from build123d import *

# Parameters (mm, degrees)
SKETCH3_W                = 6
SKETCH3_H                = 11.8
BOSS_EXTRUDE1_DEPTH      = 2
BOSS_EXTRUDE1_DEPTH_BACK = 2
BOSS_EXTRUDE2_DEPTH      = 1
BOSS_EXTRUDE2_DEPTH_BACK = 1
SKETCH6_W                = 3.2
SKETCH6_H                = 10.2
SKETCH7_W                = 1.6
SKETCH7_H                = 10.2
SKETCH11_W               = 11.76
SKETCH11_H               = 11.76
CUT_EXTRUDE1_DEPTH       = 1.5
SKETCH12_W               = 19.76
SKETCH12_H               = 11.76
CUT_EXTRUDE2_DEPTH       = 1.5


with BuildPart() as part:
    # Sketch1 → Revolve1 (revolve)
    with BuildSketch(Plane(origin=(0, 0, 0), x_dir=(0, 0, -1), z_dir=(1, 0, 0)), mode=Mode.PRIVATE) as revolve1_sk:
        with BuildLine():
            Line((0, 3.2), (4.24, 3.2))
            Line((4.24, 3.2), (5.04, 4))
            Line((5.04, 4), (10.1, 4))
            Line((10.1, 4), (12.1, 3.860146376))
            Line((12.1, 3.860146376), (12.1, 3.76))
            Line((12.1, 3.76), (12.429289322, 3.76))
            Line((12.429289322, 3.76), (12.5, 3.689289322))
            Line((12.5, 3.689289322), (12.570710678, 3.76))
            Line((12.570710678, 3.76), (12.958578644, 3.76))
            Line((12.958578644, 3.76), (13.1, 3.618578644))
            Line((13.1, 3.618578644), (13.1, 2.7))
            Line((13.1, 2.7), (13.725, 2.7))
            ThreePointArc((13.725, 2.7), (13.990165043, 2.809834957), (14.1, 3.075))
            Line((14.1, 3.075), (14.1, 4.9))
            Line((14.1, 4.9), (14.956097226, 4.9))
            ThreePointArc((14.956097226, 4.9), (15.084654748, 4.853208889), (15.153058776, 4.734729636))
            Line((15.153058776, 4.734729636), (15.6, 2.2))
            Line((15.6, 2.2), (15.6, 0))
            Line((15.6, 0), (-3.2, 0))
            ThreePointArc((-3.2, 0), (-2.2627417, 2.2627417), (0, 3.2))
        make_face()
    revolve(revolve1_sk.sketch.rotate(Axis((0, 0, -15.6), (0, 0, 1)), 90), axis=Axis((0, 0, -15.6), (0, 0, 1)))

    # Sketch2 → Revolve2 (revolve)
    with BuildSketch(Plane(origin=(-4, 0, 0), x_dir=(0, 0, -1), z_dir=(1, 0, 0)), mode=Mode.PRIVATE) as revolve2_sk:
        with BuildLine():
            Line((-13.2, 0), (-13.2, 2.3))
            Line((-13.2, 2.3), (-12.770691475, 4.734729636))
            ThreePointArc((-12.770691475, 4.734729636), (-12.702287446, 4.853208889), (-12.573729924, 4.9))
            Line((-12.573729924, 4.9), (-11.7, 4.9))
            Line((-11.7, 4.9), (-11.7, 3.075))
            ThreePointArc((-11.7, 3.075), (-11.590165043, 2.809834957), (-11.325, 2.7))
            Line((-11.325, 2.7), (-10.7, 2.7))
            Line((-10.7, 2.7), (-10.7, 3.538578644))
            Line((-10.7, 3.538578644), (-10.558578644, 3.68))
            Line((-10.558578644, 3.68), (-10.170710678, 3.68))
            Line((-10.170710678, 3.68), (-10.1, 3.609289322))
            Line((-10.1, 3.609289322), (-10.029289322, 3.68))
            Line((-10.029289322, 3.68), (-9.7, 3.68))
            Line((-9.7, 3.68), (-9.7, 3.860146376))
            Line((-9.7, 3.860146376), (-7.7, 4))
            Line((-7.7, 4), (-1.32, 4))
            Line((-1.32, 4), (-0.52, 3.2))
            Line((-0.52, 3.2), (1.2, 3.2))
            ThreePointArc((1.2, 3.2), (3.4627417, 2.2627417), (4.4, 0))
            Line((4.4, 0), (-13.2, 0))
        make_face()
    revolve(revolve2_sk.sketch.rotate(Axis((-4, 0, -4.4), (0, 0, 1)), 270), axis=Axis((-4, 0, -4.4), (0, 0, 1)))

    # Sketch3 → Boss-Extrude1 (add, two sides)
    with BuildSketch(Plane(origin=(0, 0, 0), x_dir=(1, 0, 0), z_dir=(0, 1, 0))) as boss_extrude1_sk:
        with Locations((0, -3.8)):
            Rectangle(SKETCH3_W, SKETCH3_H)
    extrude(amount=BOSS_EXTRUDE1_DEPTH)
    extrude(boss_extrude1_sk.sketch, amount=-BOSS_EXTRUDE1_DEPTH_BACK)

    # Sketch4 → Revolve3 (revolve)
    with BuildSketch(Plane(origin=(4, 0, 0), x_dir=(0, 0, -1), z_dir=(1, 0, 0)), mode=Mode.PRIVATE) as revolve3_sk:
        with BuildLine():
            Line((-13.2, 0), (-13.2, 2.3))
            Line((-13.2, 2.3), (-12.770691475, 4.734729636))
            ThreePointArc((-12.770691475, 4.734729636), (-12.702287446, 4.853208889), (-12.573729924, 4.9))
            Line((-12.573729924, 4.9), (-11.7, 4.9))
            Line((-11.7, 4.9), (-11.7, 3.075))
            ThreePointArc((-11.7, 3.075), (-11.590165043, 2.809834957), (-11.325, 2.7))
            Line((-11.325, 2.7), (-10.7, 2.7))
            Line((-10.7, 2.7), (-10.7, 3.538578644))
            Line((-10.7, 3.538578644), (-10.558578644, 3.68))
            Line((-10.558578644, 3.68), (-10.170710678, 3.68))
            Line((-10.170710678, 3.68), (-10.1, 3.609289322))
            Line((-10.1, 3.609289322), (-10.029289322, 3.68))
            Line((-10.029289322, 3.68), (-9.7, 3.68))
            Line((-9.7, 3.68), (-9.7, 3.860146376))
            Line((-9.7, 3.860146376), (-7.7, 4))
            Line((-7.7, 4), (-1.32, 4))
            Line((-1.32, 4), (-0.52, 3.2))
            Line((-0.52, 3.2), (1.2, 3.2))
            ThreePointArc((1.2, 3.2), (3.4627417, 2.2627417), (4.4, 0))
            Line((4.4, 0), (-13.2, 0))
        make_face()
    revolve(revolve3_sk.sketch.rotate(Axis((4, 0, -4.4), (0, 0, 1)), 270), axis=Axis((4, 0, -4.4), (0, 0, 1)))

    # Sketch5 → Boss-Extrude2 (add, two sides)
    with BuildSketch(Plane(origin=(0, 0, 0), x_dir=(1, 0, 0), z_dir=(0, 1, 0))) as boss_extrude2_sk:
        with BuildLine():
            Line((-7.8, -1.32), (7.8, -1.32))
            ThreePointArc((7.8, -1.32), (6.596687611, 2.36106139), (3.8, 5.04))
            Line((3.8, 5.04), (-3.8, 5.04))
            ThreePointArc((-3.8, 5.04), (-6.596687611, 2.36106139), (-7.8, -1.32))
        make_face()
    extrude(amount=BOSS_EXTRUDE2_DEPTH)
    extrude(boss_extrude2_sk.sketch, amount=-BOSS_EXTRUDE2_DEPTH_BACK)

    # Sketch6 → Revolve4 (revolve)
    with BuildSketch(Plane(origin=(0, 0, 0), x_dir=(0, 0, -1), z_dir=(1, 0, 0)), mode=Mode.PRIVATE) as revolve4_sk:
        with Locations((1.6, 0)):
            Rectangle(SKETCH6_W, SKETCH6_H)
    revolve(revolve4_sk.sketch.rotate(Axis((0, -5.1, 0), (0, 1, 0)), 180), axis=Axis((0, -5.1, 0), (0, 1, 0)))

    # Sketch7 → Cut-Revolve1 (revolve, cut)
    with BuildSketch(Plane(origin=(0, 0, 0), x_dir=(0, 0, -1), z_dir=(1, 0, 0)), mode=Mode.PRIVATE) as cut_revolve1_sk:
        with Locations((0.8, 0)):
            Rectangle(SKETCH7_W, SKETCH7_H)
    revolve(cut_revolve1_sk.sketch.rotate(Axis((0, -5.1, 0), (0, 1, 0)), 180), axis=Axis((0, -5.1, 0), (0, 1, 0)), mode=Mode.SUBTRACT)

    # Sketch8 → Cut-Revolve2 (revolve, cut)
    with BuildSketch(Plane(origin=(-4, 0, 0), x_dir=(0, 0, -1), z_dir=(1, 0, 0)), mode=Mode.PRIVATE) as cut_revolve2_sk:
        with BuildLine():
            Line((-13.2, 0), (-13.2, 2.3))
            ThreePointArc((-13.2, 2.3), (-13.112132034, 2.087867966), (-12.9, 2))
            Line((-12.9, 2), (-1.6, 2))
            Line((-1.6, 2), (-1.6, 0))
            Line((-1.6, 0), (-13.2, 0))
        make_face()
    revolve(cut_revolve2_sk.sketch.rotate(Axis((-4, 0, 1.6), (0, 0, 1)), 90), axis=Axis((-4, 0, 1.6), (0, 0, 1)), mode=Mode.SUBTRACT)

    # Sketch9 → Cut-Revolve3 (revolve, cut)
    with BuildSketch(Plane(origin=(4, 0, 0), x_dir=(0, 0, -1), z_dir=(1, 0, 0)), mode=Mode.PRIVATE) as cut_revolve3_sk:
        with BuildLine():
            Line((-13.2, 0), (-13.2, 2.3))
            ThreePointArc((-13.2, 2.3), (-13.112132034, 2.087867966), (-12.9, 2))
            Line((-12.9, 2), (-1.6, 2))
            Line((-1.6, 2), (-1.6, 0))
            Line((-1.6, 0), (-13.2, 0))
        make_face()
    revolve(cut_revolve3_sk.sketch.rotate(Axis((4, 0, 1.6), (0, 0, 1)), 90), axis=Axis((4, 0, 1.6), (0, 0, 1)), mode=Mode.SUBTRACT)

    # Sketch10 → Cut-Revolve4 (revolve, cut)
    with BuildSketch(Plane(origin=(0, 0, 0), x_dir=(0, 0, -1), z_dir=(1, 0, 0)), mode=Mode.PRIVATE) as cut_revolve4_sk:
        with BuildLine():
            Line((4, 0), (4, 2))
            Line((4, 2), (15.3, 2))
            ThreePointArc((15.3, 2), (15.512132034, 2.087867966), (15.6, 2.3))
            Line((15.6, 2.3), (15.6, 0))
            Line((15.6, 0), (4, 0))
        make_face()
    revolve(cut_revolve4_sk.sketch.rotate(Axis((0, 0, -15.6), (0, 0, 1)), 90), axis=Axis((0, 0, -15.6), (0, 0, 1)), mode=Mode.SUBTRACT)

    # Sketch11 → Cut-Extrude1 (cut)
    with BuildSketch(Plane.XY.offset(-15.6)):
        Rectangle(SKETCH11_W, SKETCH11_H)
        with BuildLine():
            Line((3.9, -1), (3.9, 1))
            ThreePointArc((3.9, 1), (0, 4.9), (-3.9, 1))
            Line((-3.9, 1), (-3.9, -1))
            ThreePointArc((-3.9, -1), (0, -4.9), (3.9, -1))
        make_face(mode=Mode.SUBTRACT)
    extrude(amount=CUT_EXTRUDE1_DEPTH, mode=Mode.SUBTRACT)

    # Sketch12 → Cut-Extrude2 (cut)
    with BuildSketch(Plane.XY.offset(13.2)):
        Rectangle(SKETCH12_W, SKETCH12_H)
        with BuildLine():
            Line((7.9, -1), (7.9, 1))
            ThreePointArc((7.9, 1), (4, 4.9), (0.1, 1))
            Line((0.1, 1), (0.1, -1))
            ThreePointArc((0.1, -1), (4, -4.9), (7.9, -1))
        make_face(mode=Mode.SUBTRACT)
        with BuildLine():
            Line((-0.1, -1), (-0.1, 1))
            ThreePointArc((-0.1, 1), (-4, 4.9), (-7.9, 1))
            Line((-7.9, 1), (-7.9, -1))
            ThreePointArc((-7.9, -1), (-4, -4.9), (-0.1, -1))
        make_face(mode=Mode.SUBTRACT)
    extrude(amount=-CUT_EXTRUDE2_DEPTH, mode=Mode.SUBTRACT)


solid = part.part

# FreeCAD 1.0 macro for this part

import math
import FreeCAD as App
import Part
import Sketcher

V = App.Vector
Q = App.Units.Quantity


def add_polygon(sketch, points):
    """Adds a closed chain of lines whose ends are joined by coincident constraints."""
    first, n = sketch.GeometryCount, len(points)
    for a, b in zip(points, points[1:] + points[:1]):
        sketch.addGeometry(Part.LineSegment(App.Vector(*a, 0), App.Vector(*b, 0)), False)
    for i in range(n):
        sketch.addConstraint(Sketcher.Constraint("Coincident", first + i, 2, first + (i + 1) % n, 1))

doc = App.newDocument("Part")
body = doc.addObject("PartDesign::Body", "Body")

sketch1 = doc.addObject("Sketcher::SketchObject", "Sketch")
body.addObject(sketch1)
sketch1.AttachmentSupport = (doc.YZ_Plane, [""])
sketch1.MapMode = "FlatFace"
sketch1.addGeometry([
    Part.LineSegment(V(3.2, -4.24, 0), V(3.2, 0, 0)),
    Part.ArcOfCircle(Part.Circle(V(0, 0, 0), V(0, 0, 1), 3.2), math.radians(0), math.radians(90)),
    Part.LineSegment(V(0, 3.2, 0), V(0, -15.6, 0)),
    Part.LineSegment(V(0, -15.6, 0), V(2.2, -15.6, 0)),
    Part.LineSegment(V(2.2, -15.6, 0), V(4.73473, -15.153059, 0)),
    Part.ArcOfCircle(Part.Circle(V(4.7, -14.956097, 0), V(0, 0, 1), 0.2), math.radians(-80), math.radians(0)),
    Part.LineSegment(V(4.9, -14.956097, 0), V(4.9, -14.1, 0)),
    Part.LineSegment(V(4.9, -14.1, 0), V(3.075, -14.1, 0)),
    Part.ArcOfCircle(Part.Circle(V(3.075, -13.725, 0), V(0, 0, 1), 0.375), math.radians(180), math.radians(270)),
    Part.LineSegment(V(2.7, -13.725, 0), V(2.7, -13.1, 0)),
    Part.LineSegment(V(2.7, -13.1, 0), V(3.618579, -13.1, 0)),
    Part.LineSegment(V(3.618579, -13.1, 0), V(3.76, -12.958579, 0)),
    Part.LineSegment(V(3.76, -12.958579, 0), V(3.76, -12.570711, 0)),
    Part.LineSegment(V(3.76, -12.570711, 0), V(3.689289, -12.5, 0)),
    Part.LineSegment(V(3.689289, -12.5, 0), V(3.76, -12.429289, 0)),
    Part.LineSegment(V(3.76, -12.429289, 0), V(3.76, -12.1, 0)),
    Part.LineSegment(V(3.76, -12.1, 0), V(3.860146, -12.1, 0)),
    Part.LineSegment(V(3.860146, -12.1, 0), V(4, -10.1, 0)),
    Part.LineSegment(V(4, -10.1, 0), V(4, -5.04, 0)),
    Part.LineSegment(V(4, -5.04, 0), V(3.2, -4.24, 0)),
], False)
sketch1.addConstraint([
    Sketcher.Constraint("Tangent", 0, 2, 1, 1),
    Sketcher.Constraint("Coincident", 1, 2, 2, 1),
    Sketcher.Constraint("Coincident", 2, 2, 3, 1),
    Sketcher.Constraint("Coincident", 3, 2, 4, 1),
    Sketcher.Constraint("Tangent", 4, 2, 5, 1),
    Sketcher.Constraint("Tangent", 5, 2, 6, 1),
    Sketcher.Constraint("Coincident", 6, 2, 7, 1),
    Sketcher.Constraint("Tangent", 7, 2, 8, 2),
    Sketcher.Constraint("Tangent", 8, 1, 9, 1),
    Sketcher.Constraint("Coincident", 9, 2, 10, 1),
    Sketcher.Constraint("Coincident", 10, 2, 11, 1),
    Sketcher.Constraint("Coincident", 11, 2, 12, 1),
    Sketcher.Constraint("Coincident", 12, 2, 13, 1),
    Sketcher.Constraint("Coincident", 13, 2, 14, 1),
    Sketcher.Constraint("Coincident", 14, 2, 15, 1),
    Sketcher.Constraint("Coincident", 15, 2, 16, 1),
    Sketcher.Constraint("Coincident", 16, 2, 17, 1),
    Sketcher.Constraint("Coincident", 17, 2, 18, 1),
    Sketcher.Constraint("Coincident", 18, 2, 19, 1),
    Sketcher.Constraint("Coincident", 19, 2, 0, 1),
    Sketcher.Constraint("Vertical", 0),
    Sketcher.Constraint("Vertical", 2),
    Sketcher.Constraint("Horizontal", 3),
    Sketcher.Constraint("Vertical", 6),
    Sketcher.Constraint("Horizontal", 7),
    Sketcher.Constraint("Vertical", 9),
    Sketcher.Constraint("Horizontal", 10),
    Sketcher.Constraint("Vertical", 12),
    Sketcher.Constraint("Vertical", 15),
    Sketcher.Constraint("Horizontal", 16),
    Sketcher.Constraint("Vertical", 18),
    Sketcher.Constraint("Coincident", 1, 3, -1, 1),
    Sketcher.Constraint("PointOnObject", 1, 2, -2),
    Sketcher.Constraint("Perpendicular", 11, 13),
    Sketcher.Constraint("Perpendicular", 13, 14),
    Sketcher.Constraint("Perpendicular", 14, 19),
    Sketcher.Constraint("Vertical", 12, 2, 14, 2),
    Sketcher.Constraint("Equal", 13, 14),
    Sketcher.Constraint("Radius", 1, 3.2),
    Sketcher.Constraint("Radius", 5, 0.2),
    Sketcher.Constraint("Angle", 4, Q("10 deg")),
    Sketcher.Constraint("Angle", 17, Q("86 deg")),
    Sketcher.Constraint("DistanceX", 3, 1, 3, 2, 2.2),
    Sketcher.Constraint("DistanceY", 2, 2, 2, 1, 18.8),
    Sketcher.Constraint("DistanceX", -1, 1, 17, 2, 4.0),
    Sketcher.Constraint("Radius", 8, 0.375),
    Sketcher.Constraint("DistanceX", 8, 1, 5, 3, 2.0),
    Sketcher.Constraint("DistanceY", 7, 2, 9, 2, 1.0),
    Sketcher.Constraint("DistanceY", 10, 2, 15, 2, 1.0),
    Sketcher.Constraint("DistanceY", 16, 2, 17, 2, 2.0),
    Sketcher.Constraint("Distance", 11, 0.2),
    Sketcher.Constraint("Distance", 13, 0.1),
    Sketcher.Constraint("DistanceY", 0, 1, 0, 2, 4.24),
    Sketcher.Constraint("DistanceY", 18, 1, 18, 2, 5.06),
    Sketcher.Constraint("DistanceX", -1, 1, 5, 3, 4.7),
    Sketcher.Constraint("DistanceY", 13, 2, -1, 1, 12.5),
    Sketcher.Constraint("DistanceX", -1, 1, 11, 2, 3.76),
])
revolution = doc.addObject("PartDesign::Revolution", "Revolution")
body.addObject(revolution)
revolution.Profile = sketch1
revolution.ReferenceAxis = (sketch1, ["V_Axis"])
revolution.Angle = 360

sketch2 = doc.addObject("Sketcher::SketchObject", "Sketch001")
body.addObject(sketch2)
sketch2.AttachmentSupport = (doc.YZ_Plane, [""])
sketch2.MapMode = "FlatFace"
sketch2.AttachmentOffset = App.Placement(V(0, 0, -4), App.Rotation())
sketch2.addGeometry([
    Part.LineSegment(V(2.3, 13.2, 0), V(0, 13.2, 0)),
    Part.LineSegment(V(0, 13.2, 0), V(0, -4.4, 0)),
    Part.ArcOfCircle(Part.Circle(V(0, -1.2, 0), V(0, 0, 1), 3.2), math.radians(-90), math.radians(0)),
    Part.LineSegment(V(3.2, -1.2, 0), V(3.2, 0.52, 0)),
    Part.LineSegment(V(3.2, 0.52, 0), V(4, 1.32, 0)),
    Part.LineSegment(V(4, 1.32, 0), V(4, 7.7, 0)),
    Part.LineSegment(V(4, 7.7, 0), V(3.860146, 9.7, 0)),
    Part.LineSegment(V(3.860146, 9.7, 0), V(3.68, 9.7, 0)),
    Part.LineSegment(V(3.68, 9.7, 0), V(3.68, 10.029289, 0)),
    Part.LineSegment(V(3.68, 10.029289, 0), V(3.609289, 10.1, 0)),
    Part.LineSegment(V(3.609289, 10.1, 0), V(3.68, 10.170711, 0)),
    Part.LineSegment(V(3.68, 10.170711, 0), V(3.68, 10.558579, 0)),
    Part.LineSegment(V(3.68, 10.558579, 0), V(3.538579, 10.7, 0)),
    Part.LineSegment(V(3.538579, 10.7, 0), V(2.7, 10.7, 0)),
    Part.LineSegment(V(2.7, 10.7, 0), V(2.7, 11.325, 0)),
    Part.ArcOfCircle(Part.Circle(V(3.075, 11.325, 0), V(0, 0, 1), 0.375), math.radians(90), math.radians(180)),
    Part.LineSegment(V(3.075, 11.7, 0), V(4.9, 11.7, 0)),
    Part.LineSegment(V(4.9, 11.7, 0), V(4.9, 12.57373, 0)),
    Part.ArcOfCircle(Part.Circle(V(4.7, 12.57373, 0), V(0, 0, 1), 0.2), math.radians(0), math.radians(80)),
    Part.LineSegment(V(4.73473, 12.770691, 0), V(2.3, 13.2, 0)),
], False)
sketch2.addConstraint([
    Sketcher.Constraint("Coincident", 0, 2, 1, 1),
    Sketcher.Constraint("Coincident", 1, 2, 2, 1),
    Sketcher.Constraint("Tangent", 2, 2, 3, 1),
    Sketcher.Constraint("Coincident", 3, 2, 4, 1),
    Sketcher.Constraint("Coincident", 4, 2, 5, 1),
    Sketcher.Constraint("Coincident", 5, 2, 6, 1),
    Sketcher.Constraint("Coincident", 6, 2, 7, 1),
    Sketcher.Constraint("Coincident", 7, 2, 8, 1),
    Sketcher.Constraint("Coincident", 8, 2, 9, 1),
    Sketcher.Constraint("Coincident", 9, 2, 10, 1),
    Sketcher.Constraint("Coincident", 10, 2, 11, 1),
    Sketcher.Constraint("Coincident", 11, 2, 12, 1),
    Sketcher.Constraint("Coincident", 12, 2, 13, 1),
    Sketcher.Constraint("Coincident", 13, 2, 14, 1),
    Sketcher.Constraint("Tangent", 14, 2, 15, 2),
    Sketcher.Constraint("Tangent", 15, 1, 16, 1),
    Sketcher.Constraint("Coincident", 16, 2, 17, 1),
    Sketcher.Constraint("Tangent", 17, 2, 18, 1),
    Sketcher.Constraint("Tangent", 18, 2, 19, 1),
    Sketcher.Constraint("Coincident", 19, 2, 0, 1),
    Sketcher.Constraint("Horizontal", 0),
    Sketcher.Constraint("Vertical", 1),
    Sketcher.Constraint("Vertical", 3),
    Sketcher.Constraint("Vertical", 5),
    Sketcher.Constraint("Horizontal", 7),
    Sketcher.Constraint("Vertical", 8),
    Sketcher.Constraint("Vertical", 11),
    Sketcher.Constraint("Horizontal", 13),
    Sketcher.Constraint("Vertical", 14),
    Sketcher.Constraint("Horizontal", 16),
    Sketcher.Constraint("Vertical", 17),
    Sketcher.Constraint("PointOnObject", 2, 3, -2),
    Sketcher.Constraint("PointOnObject", 0, 2, -2),
    Sketcher.Constraint("Perpendicular", 4, 9),
    Sketcher.Constraint("Perpendicular", 9, 10),
    Sketcher.Constraint("Perpendicular", 10, 12),
    Sketcher.Constraint("Vertical", 8, 2, 10, 2),
    Sketcher.Constraint("Equal", 9, 10),
    Sketcher.Constraint("Radius", 2, 3.2),
    Sketcher.Constraint("Radius", 18, 0.2),
    Sketcher.Constraint("Angle", 6, Q("94 deg")),
    Sketcher.Constraint("Angle", 19, Q("170 deg")),
    Sketcher.Constraint("DistanceX", 0, 2, 0, 1, 2.3),
    Sketcher.Constraint("DistanceY", 1, 2, 1, 1, 17.6),
    Sketcher.Constraint("DistanceX", -1, 1, 4, 2, 4.0),
    Sketcher.Constraint("Radius", 15, 0.375),
    Sketcher.Constraint("DistanceY", 5, 2, 6, 2, 2.0),
    Sketcher.Constraint("DistanceY", 13, 2, 15, 1, 1.0),
    Sketcher.Constraint("Distance", 9, 0.1),
    Sketcher.Constraint("Distance", 12, 0.2),
    Sketcher.Constraint("DistanceY", 3, 1, 3, 2, 1.72),
    Sketcher.Constraint("DistanceY", 5, 1, 5, 2, 6.38),
    Sketcher.Constraint("DistanceY", 2, 3, -1, 1, 1.2),
    Sketcher.Constraint("DistanceX", -1, 1, 18, 3, 4.7),
    Sketcher.Constraint("DistanceY", -1, 1, 9, 2, 10.1),
    Sketcher.Constraint("DistanceY", -1, 1, 12, 2, 10.7),
    Sketcher.Constraint("DistanceX", -1, 1, 13, 2, 2.7),
    Sketcher.Constraint("DistanceX", -1, 1, 7, 2, 3.68),
])
revolution2 = doc.addObject("PartDesign::Revolution", "Revolution001")
body.addObject(revolution2)
revolution2.Profile = sketch2
revolution2.ReferenceAxis = (sketch2, ["V_Axis"])
revolution2.Angle = 360

sketch3 = doc.addObject("Sketcher::SketchObject", "Sketch002")
body.addObject(sketch3)
sketch3.AttachmentSupport = (doc.XZ_Plane, [""])
sketch3.MapMode = "FlatFace"
add_polygon(sketch3, [(-3, -2.1), (-3, 9.7), (3, 9.7), (3, -2.1)])
sketch3.addConstraint([
    Sketcher.Constraint("Vertical", 0),
    Sketcher.Constraint("Horizontal", 1),
    Sketcher.Constraint("Vertical", 2),
    Sketcher.Constraint("Horizontal", 3),
    Sketcher.Constraint("DistanceX", 1, 1, 1, 2, 6.0),
    Sketcher.Constraint("DistanceY", 0, 1, 0, 2, 11.8),
    Sketcher.Constraint("DistanceX", 0, 2, -1, 1, 3.0),
    Sketcher.Constraint("DistanceY", -1, 1, 0, 2, 9.7),
])
pad1 = doc.addObject("PartDesign::Pad", "Pad")
body.addObject(pad1)
pad1.Profile = sketch3
pad1.Type = "TwoLengths"
pad1.Length = 2
pad1.Length2 = 2
pad1.Reversed = True

sketch4 = doc.addObject("Sketcher::SketchObject", "Sketch003")
body.addObject(sketch4)
sketch4.AttachmentSupport = (doc.YZ_Plane, [""])
sketch4.MapMode = "FlatFace"
sketch4.AttachmentOffset = App.Placement(V(0, 0, 4), App.Rotation())
sketch4.addGeometry([
    Part.LineSegment(V(2.3, 13.2, 0), V(0, 13.2, 0)),
    Part.LineSegment(V(0, 13.2, 0), V(0, -4.4, 0)),
    Part.ArcOfCircle(Part.Circle(V(0, -1.2, 0), V(0, 0, 1), 3.2), math.radians(-90), math.radians(0)),
    Part.LineSegment(V(3.2, -1.2, 0), V(3.2, 0.52, 0)),
    Part.LineSegment(V(3.2, 0.52, 0), V(4, 1.32, 0)),
    Part.LineSegment(V(4, 1.32, 0), V(4, 7.7, 0)),
    Part.LineSegment(V(4, 7.7, 0), V(3.860146, 9.7, 0)),
    Part.LineSegment(V(3.860146, 9.7, 0), V(3.68, 9.7, 0)),
    Part.LineSegment(V(3.68, 9.7, 0), V(3.68, 10.029289, 0)),
    Part.LineSegment(V(3.68, 10.029289, 0), V(3.609289, 10.1, 0)),
    Part.LineSegment(V(3.609289, 10.1, 0), V(3.68, 10.170711, 0)),
    Part.LineSegment(V(3.68, 10.170711, 0), V(3.68, 10.558579, 0)),
    Part.LineSegment(V(3.68, 10.558579, 0), V(3.538579, 10.7, 0)),
    Part.LineSegment(V(3.538579, 10.7, 0), V(2.7, 10.7, 0)),
    Part.LineSegment(V(2.7, 10.7, 0), V(2.7, 11.325, 0)),
    Part.ArcOfCircle(Part.Circle(V(3.075, 11.325, 0), V(0, 0, 1), 0.375), math.radians(90), math.radians(180)),
    Part.LineSegment(V(3.075, 11.7, 0), V(4.9, 11.7, 0)),
    Part.LineSegment(V(4.9, 11.7, 0), V(4.9, 12.57373, 0)),
    Part.ArcOfCircle(Part.Circle(V(4.7, 12.57373, 0), V(0, 0, 1), 0.2), math.radians(0), math.radians(80)),
    Part.LineSegment(V(4.73473, 12.770691, 0), V(2.3, 13.2, 0)),
], False)
sketch4.addConstraint([
    Sketcher.Constraint("Coincident", 0, 2, 1, 1),
    Sketcher.Constraint("Coincident", 1, 2, 2, 1),
    Sketcher.Constraint("Tangent", 2, 2, 3, 1),
    Sketcher.Constraint("Coincident", 3, 2, 4, 1),
    Sketcher.Constraint("Coincident", 4, 2, 5, 1),
    Sketcher.Constraint("Coincident", 5, 2, 6, 1),
    Sketcher.Constraint("Coincident", 6, 2, 7, 1),
    Sketcher.Constraint("Coincident", 7, 2, 8, 1),
    Sketcher.Constraint("Coincident", 8, 2, 9, 1),
    Sketcher.Constraint("Coincident", 9, 2, 10, 1),
    Sketcher.Constraint("Coincident", 10, 2, 11, 1),
    Sketcher.Constraint("Coincident", 11, 2, 12, 1),
    Sketcher.Constraint("Coincident", 12, 2, 13, 1),
    Sketcher.Constraint("Coincident", 13, 2, 14, 1),
    Sketcher.Constraint("Tangent", 14, 2, 15, 2),
    Sketcher.Constraint("Tangent", 15, 1, 16, 1),
    Sketcher.Constraint("Coincident", 16, 2, 17, 1),
    Sketcher.Constraint("Tangent", 17, 2, 18, 1),
    Sketcher.Constraint("Tangent", 18, 2, 19, 1),
    Sketcher.Constraint("Coincident", 19, 2, 0, 1),
    Sketcher.Constraint("Horizontal", 0),
    Sketcher.Constraint("Vertical", 1),
    Sketcher.Constraint("Vertical", 3),
    Sketcher.Constraint("Vertical", 5),
    Sketcher.Constraint("Horizontal", 7),
    Sketcher.Constraint("Vertical", 8),
    Sketcher.Constraint("Vertical", 11),
    Sketcher.Constraint("Horizontal", 13),
    Sketcher.Constraint("Vertical", 14),
    Sketcher.Constraint("Horizontal", 16),
    Sketcher.Constraint("Vertical", 17),
    Sketcher.Constraint("PointOnObject", 2, 3, -2),
    Sketcher.Constraint("PointOnObject", 0, 2, -2),
    Sketcher.Constraint("Perpendicular", 4, 9),
    Sketcher.Constraint("Perpendicular", 9, 10),
    Sketcher.Constraint("Perpendicular", 10, 12),
    Sketcher.Constraint("Vertical", 8, 2, 10, 2),
    Sketcher.Constraint("Equal", 9, 10),
    Sketcher.Constraint("Radius", 2, 3.2),
    Sketcher.Constraint("Radius", 18, 0.2),
    Sketcher.Constraint("Angle", 6, Q("94 deg")),
    Sketcher.Constraint("Angle", 19, Q("170 deg")),
    Sketcher.Constraint("DistanceX", 0, 2, 0, 1, 2.3),
    Sketcher.Constraint("DistanceY", 1, 2, 1, 1, 17.6),
    Sketcher.Constraint("DistanceX", -1, 1, 4, 2, 4.0),
    Sketcher.Constraint("Radius", 15, 0.375),
    Sketcher.Constraint("DistanceY", 5, 2, 6, 2, 2.0),
    Sketcher.Constraint("DistanceY", 13, 2, 15, 1, 1.0),
    Sketcher.Constraint("Distance", 9, 0.1),
    Sketcher.Constraint("Distance", 12, 0.2),
    Sketcher.Constraint("DistanceY", 3, 1, 3, 2, 1.72),
    Sketcher.Constraint("DistanceY", 5, 1, 5, 2, 6.38),
    Sketcher.Constraint("DistanceY", 2, 3, -1, 1, 1.2),
    Sketcher.Constraint("DistanceX", -1, 1, 18, 3, 4.7),
    Sketcher.Constraint("DistanceY", -1, 1, 9, 2, 10.1),
    Sketcher.Constraint("DistanceY", -1, 1, 12, 2, 10.7),
    Sketcher.Constraint("DistanceX", -1, 1, 13, 2, 2.7),
    Sketcher.Constraint("DistanceX", -1, 1, 7, 2, 3.68),
])
revolution3 = doc.addObject("PartDesign::Revolution", "Revolution002")
body.addObject(revolution3)
revolution3.Profile = sketch4
revolution3.ReferenceAxis = (sketch4, ["V_Axis"])
revolution3.Angle = 360

sketch5 = doc.addObject("Sketcher::SketchObject", "Sketch004")
body.addObject(sketch5)
sketch5.AttachmentSupport = (doc.XZ_Plane, [""])
sketch5.MapMode = "FlatFace"
sketch5.addGeometry([
    Part.LineSegment(V(-7.8, 1.32, 0), V(7.8, 1.32, 0)),
    Part.ArcOfCircle(Part.Circle(V(-0.148184, 1.880996, 0), V(0, 0, 1), 7.967957), math.radians(-60.296768), math.radians(-4.037337)),
    Part.LineSegment(V(3.8, -5.04, 0), V(-3.8, -5.04, 0)),
    Part.ArcOfCircle(Part.Circle(V(0.148184, 1.880996, 0), V(0, 0, 1), 7.967957), math.radians(-175.962663), math.radians(-119.703232)),
], False)
sketch5.addConstraint([
    Sketcher.Constraint("Coincident", 0, 2, 1, 2),
    Sketcher.Constraint("Coincident", 1, 1, 2, 1),
    Sketcher.Constraint("Coincident", 2, 2, 3, 2),
    Sketcher.Constraint("Coincident", 3, 1, 0, 1),
    Sketcher.Constraint("Horizontal", 0),
    Sketcher.Constraint("Horizontal", 2),
    Sketcher.Constraint("Equal", 1, 3),
    Sketcher.Constraint("Symmetric", 1, 3, 3, 3, -2),
    Sketcher.Constraint("DistanceX", 0, 1, 0, 2, 15.6),
    Sketcher.Constraint("DistanceX", 2, 2, 2, 1, 7.6),
    Sketcher.Constraint("DistanceY", -1, 1, 0, 2, 1.32),
    Sketcher.Constraint("DistanceY", 1, 1, -1, 1, 5.04),
    Sketcher.Constraint("Radius", 1, 7.967957),
])
pad2 = doc.addObject("PartDesign::Pad", "Pad001")
body.addObject(pad2)
pad2.Profile = sketch5
pad2.Type = "TwoLengths"
pad2.Length = 1
pad2.Length2 = 1
pad2.Reversed = True

sketch6 = doc.addObject("Sketcher::SketchObject", "Sketch005")
body.addObject(sketch6)
sketch6.AttachmentSupport = (doc.YZ_Plane, [""])
sketch6.MapMode = "FlatFace"
add_polygon(sketch6, [(5.1, 0), (-5.1, 0), (-5.1, -3.2), (5.1, -3.2)])
sketch6.addConstraint([
    Sketcher.Constraint("Horizontal", 0),
    Sketcher.Constraint("Vertical", 1),
    Sketcher.Constraint("Horizontal", 2),
    Sketcher.Constraint("Vertical", 3),
    Sketcher.Constraint("Symmetric", 0, 2, 3, 2, -1, 1),
    Sketcher.Constraint("DistanceX", 0, 2, 0, 1, 10.2),
    Sketcher.Constraint("DistanceY", 1, 2, 1, 1, 3.2),
])
revolution4 = doc.addObject("PartDesign::Revolution", "Revolution003")
body.addObject(revolution4)
revolution4.Profile = sketch6
revolution4.ReferenceAxis = (sketch6, ["H_Axis"])
revolution4.Angle = 360

sketch7 = doc.addObject("Sketcher::SketchObject", "Sketch006")
body.addObject(sketch7)
sketch7.AttachmentSupport = (doc.YZ_Plane, [""])
sketch7.MapMode = "FlatFace"
add_polygon(sketch7, [(5.1, 0), (-5.1, 0), (-5.1, -1.6), (5.1, -1.6)])
sketch7.addConstraint([
    Sketcher.Constraint("Horizontal", 0),
    Sketcher.Constraint("Vertical", 1),
    Sketcher.Constraint("Horizontal", 2),
    Sketcher.Constraint("Vertical", 3),
    Sketcher.Constraint("Symmetric", 0, 2, 3, 2, -1, 1),
    Sketcher.Constraint("DistanceX", 0, 2, 0, 1, 10.2),
    Sketcher.Constraint("DistanceY", 1, 2, 1, 1, 1.6),
])
groove = doc.addObject("PartDesign::Groove", "Groove")
body.addObject(groove)
groove.Profile = sketch7
groove.ReferenceAxis = (sketch7, ["H_Axis"])
groove.Angle = 360

sketch8 = doc.addObject("Sketcher::SketchObject", "Sketch007")
body.addObject(sketch8)
sketch8.AttachmentSupport = (doc.YZ_Plane, [""])
sketch8.MapMode = "FlatFace"
sketch8.AttachmentOffset = App.Placement(V(0, 0, -4), App.Rotation())
sketch8.addGeometry([
    Part.LineSegment(V(2.3, 13.2, 0), V(0, 13.2, 0)),
    Part.LineSegment(V(0, 13.2, 0), V(0, 1.6, 0)),
    Part.LineSegment(V(0, 1.6, 0), V(2, 1.6, 0)),
    Part.LineSegment(V(2, 1.6, 0), V(2, 12.9, 0)),
    Part.ArcOfCircle(Part.Circle(V(2.3, 12.9, 0), V(0, 0, 1), 0.3), math.radians(90), math.radians(180)),
], False)
sketch8.addConstraint([
    Sketcher.Constraint("Coincident", 0, 2, 1, 1),
    Sketcher.Constraint("Coincident", 1, 2, 2, 1),
    Sketcher.Constraint("Coincident", 2, 2, 3, 1),
    Sketcher.Constraint("Tangent", 3, 2, 4, 2),
    Sketcher.Constraint("Tangent", 4, 1, 0, 1),
    Sketcher.Constraint("Horizontal", 0),
    Sketcher.Constraint("Vertical", 1),
    Sketcher.Constraint("Horizontal", 2),
    Sketcher.Constraint("Vertical", 3),
    Sketcher.Constraint("PointOnObject", 0, 2, -2),
    Sketcher.Constraint("Radius", 4, 0.3),
    Sketcher.Constraint("DistanceX", 2, 1, 2, 2, 2.0),
    Sketcher.Constraint("DistanceY", 1, 2, 1, 1, 11.6),
    Sketcher.Constraint("DistanceY", -1, 1, 4, 3, 12.9),
])
groove2 = doc.addObject("PartDesign::Groove", "Groove001")
body.addObject(groove2)
groove2.Profile = sketch8
groove2.ReferenceAxis = (sketch8, ["V_Axis"])
groove2.Angle = 360

sketch9 = doc.addObject("Sketcher::SketchObject", "Sketch008")
body.addObject(sketch9)
sketch9.AttachmentSupport = (doc.YZ_Plane, [""])
sketch9.MapMode = "FlatFace"
sketch9.AttachmentOffset = App.Placement(V(0, 0, 4), App.Rotation())
sketch9.addGeometry([
    Part.LineSegment(V(2.3, 13.2, 0), V(0, 13.2, 0)),
    Part.LineSegment(V(0, 13.2, 0), V(0, 1.6, 0)),
    Part.LineSegment(V(0, 1.6, 0), V(2, 1.6, 0)),
    Part.LineSegment(V(2, 1.6, 0), V(2, 12.9, 0)),
    Part.ArcOfCircle(Part.Circle(V(2.3, 12.9, 0), V(0, 0, 1), 0.3), math.radians(90), math.radians(180)),
], False)
sketch9.addConstraint([
    Sketcher.Constraint("Coincident", 0, 2, 1, 1),
    Sketcher.Constraint("Coincident", 1, 2, 2, 1),
    Sketcher.Constraint("Coincident", 2, 2, 3, 1),
    Sketcher.Constraint("Tangent", 3, 2, 4, 2),
    Sketcher.Constraint("Tangent", 4, 1, 0, 1),
    Sketcher.Constraint("Horizontal", 0),
    Sketcher.Constraint("Vertical", 1),
    Sketcher.Constraint("Horizontal", 2),
    Sketcher.Constraint("Vertical", 3),
    Sketcher.Constraint("PointOnObject", 0, 2, -2),
    Sketcher.Constraint("Radius", 4, 0.3),
    Sketcher.Constraint("DistanceX", 2, 1, 2, 2, 2.0),
    Sketcher.Constraint("DistanceY", 1, 2, 1, 1, 11.6),
    Sketcher.Constraint("DistanceY", -1, 1, 4, 3, 12.9),
])
groove3 = doc.addObject("PartDesign::Groove", "Groove002")
body.addObject(groove3)
groove3.Profile = sketch9
groove3.ReferenceAxis = (sketch9, ["V_Axis"])
groove3.Angle = 360

sketch10 = doc.addObject("Sketcher::SketchObject", "Sketch009")
body.addObject(sketch10)
sketch10.AttachmentSupport = (doc.YZ_Plane, [""])
sketch10.MapMode = "FlatFace"
sketch10.addGeometry([
    Part.LineSegment(V(2, -4, 0), V(0, -4, 0)),
    Part.LineSegment(V(0, -4, 0), V(0, -15.6, 0)),
    Part.LineSegment(V(0, -15.6, 0), V(2.3, -15.6, 0)),
    Part.ArcOfCircle(Part.Circle(V(2.3, -15.3, 0), V(0, 0, 1), 0.3), math.radians(-180), math.radians(-90)),
    Part.LineSegment(V(2, -15.3, 0), V(2, -4, 0)),
], False)
sketch10.addConstraint([
    Sketcher.Constraint("Coincident", 0, 2, 1, 1),
    Sketcher.Constraint("Coincident", 1, 2, 2, 1),
    Sketcher.Constraint("Tangent", 2, 2, 3, 2),
    Sketcher.Constraint("Tangent", 3, 1, 4, 1),
    Sketcher.Constraint("Coincident", 4, 2, 0, 1),
    Sketcher.Constraint("Horizontal", 0),
    Sketcher.Constraint("Vertical", 1),
    Sketcher.Constraint("Horizontal", 2),
    Sketcher.Constraint("Vertical", 4),
    Sketcher.Constraint("PointOnObject", 0, 2, -2),
    Sketcher.Constraint("Radius", 3, 0.3),
    Sketcher.Constraint("DistanceX", 0, 2, 0, 1, 2.0),
    Sketcher.Constraint("DistanceY", 1, 2, 1, 1, 11.6),
    Sketcher.Constraint("DistanceY", 0, 2, -1, 1, 4.0),
])
groove4 = doc.addObject("PartDesign::Groove", "Groove003")
body.addObject(groove4)
groove4.Profile = sketch10
groove4.ReferenceAxis = (sketch10, ["V_Axis"])
groove4.Angle = 360

sketch11 = doc.addObject("Sketcher::SketchObject", "Sketch010")
body.addObject(sketch11)
sketch11.AttachmentSupport = (doc.XY_Plane, [""])
sketch11.MapMode = "FlatFace"
sketch11.AttachmentOffset = App.Placement(V(0, 0, -15.6), App.Rotation())
add_polygon(sketch11, [(-5.88, 5.88), (-5.88, -5.88), (5.88, -5.88), (5.88, 5.88)])
sketch11.addGeometry(Part.LineSegment(V(3.9, 1, 0), V(3.9, -1, 0)), False)
sketch11.addGeometry(Part.ArcOfCircle(Part.Circle(V(0, -1, 0), V(0, 0, 1), 3.9), math.radians(180), math.radians(360)), False)
sketch11.addGeometry(Part.LineSegment(V(-3.9, -1, 0), V(-3.9, 1, 0)), False)
sketch11.addGeometry(Part.ArcOfCircle(Part.Circle(V(0, 1, 0), V(0, 0, 1), 3.9), math.radians(0), math.radians(180)), False)
sketch11.addConstraint([
    Sketcher.Constraint("Tangent", 4, 2, 5, 2),
    Sketcher.Constraint("Tangent", 5, 1, 6, 1),
    Sketcher.Constraint("Tangent", 6, 2, 7, 2),
    Sketcher.Constraint("Tangent", 7, 1, 4, 1),
    Sketcher.Constraint("Vertical", 0),
    Sketcher.Constraint("Horizontal", 1),
    Sketcher.Constraint("Vertical", 2),
    Sketcher.Constraint("Horizontal", 3),
    Sketcher.Constraint("Vertical", 4),
    Sketcher.Constraint("Vertical", 6),
    Sketcher.Constraint("Symmetric", 5, 3, 7, 3, -1, 1),
    Sketcher.Constraint("Symmetric", 0, 2, 2, 2, -1, 1),
    Sketcher.Constraint("Equal", 3, 0),
    Sketcher.Constraint("Radius", 5, 3.9),
    Sketcher.Constraint("DistanceY", 4, 2, 4, 1, 2.0),
    Sketcher.Constraint("DistanceX", 1, 1, 1, 2, 11.76),
])
pocket1 = doc.addObject("PartDesign::Pocket", "Pocket")
body.addObject(pocket1)
pocket1.Profile = sketch11
pocket1.Length = 1.5
pocket1.Reversed = True

sketch12 = doc.addObject("Sketcher::SketchObject", "Sketch011")
body.addObject(sketch12)
sketch12.AttachmentSupport = (doc.XY_Plane, [""])
sketch12.MapMode = "FlatFace"
sketch12.AttachmentOffset = App.Placement(V(0, 0, 13.2), App.Rotation())
add_polygon(sketch12, [(-9.88, 5.88), (-9.88, -5.88), (9.88, -5.88), (9.88, 5.88)])
sketch12.addGeometry(Part.LineSegment(V(-0.1, 1, 0), V(-0.1, -1, 0)), False)
sketch12.addGeometry(Part.ArcOfCircle(Part.Circle(V(-4, -1, 0), V(0, 0, 1), 3.9), math.radians(180), math.radians(360)), False)
sketch12.addGeometry(Part.LineSegment(V(-7.9, -1, 0), V(-7.9, 1, 0)), False)
sketch12.addGeometry(Part.ArcOfCircle(Part.Circle(V(-4, 1, 0), V(0, 0, 1), 3.9), math.radians(0), math.radians(180)), False)
sketch12.addGeometry(Part.LineSegment(V(7.9, 1, 0), V(7.9, -1, 0)), False)
sketch12.addGeometry(Part.ArcOfCircle(Part.Circle(V(4, -1, 0), V(0, 0, 1), 3.9), math.radians(180), math.radians(360)), False)
sketch12.addGeometry(Part.LineSegment(V(0.1, -1, 0), V(0.1, 1, 0)), False)
sketch12.addGeometry(Part.ArcOfCircle(Part.Circle(V(4, 1, 0), V(0, 0, 1), 3.9), math.radians(0), math.radians(180)), False)
sketch12.addConstraint([
    Sketcher.Constraint("Tangent", 4, 2, 5, 2),
    Sketcher.Constraint("Tangent", 5, 1, 6, 1),
    Sketcher.Constraint("Tangent", 6, 2, 7, 2),
    Sketcher.Constraint("Tangent", 7, 1, 4, 1),
    Sketcher.Constraint("Tangent", 8, 2, 9, 2),
    Sketcher.Constraint("Tangent", 9, 1, 10, 1),
    Sketcher.Constraint("Tangent", 10, 2, 11, 2),
    Sketcher.Constraint("Tangent", 11, 1, 8, 1),
    Sketcher.Constraint("Vertical", 0),
    Sketcher.Constraint("Horizontal", 1),
    Sketcher.Constraint("Vertical", 2),
    Sketcher.Constraint("Horizontal", 3),
    Sketcher.Constraint("Vertical", 4),
    Sketcher.Constraint("Vertical", 6),
    Sketcher.Constraint("Vertical", 8),
    Sketcher.Constraint("Vertical", 10),
    Sketcher.Constraint("Equal", 7, 9),
    Sketcher.Constraint("Symmetric", 7, 3, 9, 3, -1, 1),
    Sketcher.Constraint("Symmetric", 0, 2, 2, 2, -1, 1),
    Sketcher.Constraint("Horizontal", 5, 3, 9, 3),
    Sketcher.Constraint("Horizontal", 7, 3, 11, 3),
    Sketcher.Constraint("Radius", 5, 3.9),
    Sketcher.Constraint("DistanceY", 4, 2, 4, 1, 2.0),
    Sketcher.Constraint("DistanceX", 5, 3, -1, 1, 4.0),
    Sketcher.Constraint("DistanceX", 1, 1, 1, 2, 19.76),
    Sketcher.Constraint("DistanceY", 0, 2, 0, 1, 11.76),
])
pocket2 = doc.addObject("PartDesign::Pocket", "Pocket001")
body.addObject(pocket2)
pocket2.Profile = sketch12
pocket2.Length = 1.5

doc.recompute()
